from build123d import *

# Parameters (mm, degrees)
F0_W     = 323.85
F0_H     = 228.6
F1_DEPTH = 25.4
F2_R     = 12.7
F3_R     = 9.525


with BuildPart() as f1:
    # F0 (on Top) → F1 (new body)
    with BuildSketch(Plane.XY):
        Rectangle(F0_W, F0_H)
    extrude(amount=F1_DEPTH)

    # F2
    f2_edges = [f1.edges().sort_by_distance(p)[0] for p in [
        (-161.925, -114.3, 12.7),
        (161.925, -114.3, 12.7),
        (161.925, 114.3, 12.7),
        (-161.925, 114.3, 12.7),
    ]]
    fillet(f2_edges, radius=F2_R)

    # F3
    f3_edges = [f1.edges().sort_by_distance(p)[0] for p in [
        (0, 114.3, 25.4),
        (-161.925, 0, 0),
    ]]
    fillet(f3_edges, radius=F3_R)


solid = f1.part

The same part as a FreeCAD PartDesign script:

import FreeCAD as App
import Part
import Sketcher
from FreeCAD import Vector
Q = App.Units.Quantity


def edges_at(feature, points):
    """Names of the edges that pass closest to the given points."""
    edges = feature.Shape.Edges
    near = lambda p: min(range(len(edges)), key=lambda i: edges[i].distToShape(Part.Vertex(*p))[0])
    return sorted({f"Edge{near(p) + 1}" for p in points})


def add_polygon(sketch, points):
    """Adds a closed chain of lines whose ends are joined by coincident constraints."""
    first, n = sketch.GeometryCount, len(points)
    for a, b in zip(points, points[1:] + points[:1]):
        sketch.addGeometry(Part.LineSegment(App.Vector(*a, 0), App.Vector(*b, 0)), False)
    for i in range(n):
        sketch.addConstraint(Sketcher.Constraint("Coincident", first + i, 2, first + (i + 1) % n, 1))

doc = App.newDocument("Part")
body = doc.addObject("PartDesign::Body", "Body")

# Sketch on XY plane
sketch1 = body.newObject("Sketcher::SketchObject", "Sketch")
sketch1.AttachmentSupport = (doc.getObject("XY_Plane"), [""])
sketch1.MapMode = "FlatFace"
add_polygon(sketch1, [(-162, 114), (-162, -114), (162, -114), (162, 114)])  # lines 0-3
sketch1.addConstraint([
    Sketcher.Constraint("Vertical", 0),
    Sketcher.Constraint("Horizontal", 1),
    Sketcher.Constraint("Vertical", 2),
    Sketcher.Constraint("Horizontal", 3),
    Sketcher.Constraint("Symmetric", 0, 2, 2, 2, -1, 1),
    Sketcher.Constraint("DistanceY", 0, 2, 0, 1, Q("9 in")),
    Sketcher.Constraint("DistanceX", 1, 1, 1, 2, Q("12.75 in")),
])
pad1 = body.newObject("PartDesign::Pad", "Pad")
pad1.Profile = sketch1
pad1.Length = Q("1 in")
doc.recompute()

fillet = body.newObject("PartDesign::Fillet", "Fillet")
fillet.Base = (pad1, edges_at(pad1, [
    (-161.925, -114.3, 12.7),
    (161.925, -114.3, 12.7),
    (161.925, 114.3, 12.7),
    (-161.925, 114.3, 12.7),
]))
fillet.Radius = Q("0.5 in")
doc.recompute()

fillet2 = body.newObject("PartDesign::Fillet", "Fillet001")
fillet2.Base = (fillet, edges_at(fillet, [(0, 114.3, 25.4), (-161.925, 0, 0)]))
fillet2.Radius = Q("0.375 in")

doc.recompute()
